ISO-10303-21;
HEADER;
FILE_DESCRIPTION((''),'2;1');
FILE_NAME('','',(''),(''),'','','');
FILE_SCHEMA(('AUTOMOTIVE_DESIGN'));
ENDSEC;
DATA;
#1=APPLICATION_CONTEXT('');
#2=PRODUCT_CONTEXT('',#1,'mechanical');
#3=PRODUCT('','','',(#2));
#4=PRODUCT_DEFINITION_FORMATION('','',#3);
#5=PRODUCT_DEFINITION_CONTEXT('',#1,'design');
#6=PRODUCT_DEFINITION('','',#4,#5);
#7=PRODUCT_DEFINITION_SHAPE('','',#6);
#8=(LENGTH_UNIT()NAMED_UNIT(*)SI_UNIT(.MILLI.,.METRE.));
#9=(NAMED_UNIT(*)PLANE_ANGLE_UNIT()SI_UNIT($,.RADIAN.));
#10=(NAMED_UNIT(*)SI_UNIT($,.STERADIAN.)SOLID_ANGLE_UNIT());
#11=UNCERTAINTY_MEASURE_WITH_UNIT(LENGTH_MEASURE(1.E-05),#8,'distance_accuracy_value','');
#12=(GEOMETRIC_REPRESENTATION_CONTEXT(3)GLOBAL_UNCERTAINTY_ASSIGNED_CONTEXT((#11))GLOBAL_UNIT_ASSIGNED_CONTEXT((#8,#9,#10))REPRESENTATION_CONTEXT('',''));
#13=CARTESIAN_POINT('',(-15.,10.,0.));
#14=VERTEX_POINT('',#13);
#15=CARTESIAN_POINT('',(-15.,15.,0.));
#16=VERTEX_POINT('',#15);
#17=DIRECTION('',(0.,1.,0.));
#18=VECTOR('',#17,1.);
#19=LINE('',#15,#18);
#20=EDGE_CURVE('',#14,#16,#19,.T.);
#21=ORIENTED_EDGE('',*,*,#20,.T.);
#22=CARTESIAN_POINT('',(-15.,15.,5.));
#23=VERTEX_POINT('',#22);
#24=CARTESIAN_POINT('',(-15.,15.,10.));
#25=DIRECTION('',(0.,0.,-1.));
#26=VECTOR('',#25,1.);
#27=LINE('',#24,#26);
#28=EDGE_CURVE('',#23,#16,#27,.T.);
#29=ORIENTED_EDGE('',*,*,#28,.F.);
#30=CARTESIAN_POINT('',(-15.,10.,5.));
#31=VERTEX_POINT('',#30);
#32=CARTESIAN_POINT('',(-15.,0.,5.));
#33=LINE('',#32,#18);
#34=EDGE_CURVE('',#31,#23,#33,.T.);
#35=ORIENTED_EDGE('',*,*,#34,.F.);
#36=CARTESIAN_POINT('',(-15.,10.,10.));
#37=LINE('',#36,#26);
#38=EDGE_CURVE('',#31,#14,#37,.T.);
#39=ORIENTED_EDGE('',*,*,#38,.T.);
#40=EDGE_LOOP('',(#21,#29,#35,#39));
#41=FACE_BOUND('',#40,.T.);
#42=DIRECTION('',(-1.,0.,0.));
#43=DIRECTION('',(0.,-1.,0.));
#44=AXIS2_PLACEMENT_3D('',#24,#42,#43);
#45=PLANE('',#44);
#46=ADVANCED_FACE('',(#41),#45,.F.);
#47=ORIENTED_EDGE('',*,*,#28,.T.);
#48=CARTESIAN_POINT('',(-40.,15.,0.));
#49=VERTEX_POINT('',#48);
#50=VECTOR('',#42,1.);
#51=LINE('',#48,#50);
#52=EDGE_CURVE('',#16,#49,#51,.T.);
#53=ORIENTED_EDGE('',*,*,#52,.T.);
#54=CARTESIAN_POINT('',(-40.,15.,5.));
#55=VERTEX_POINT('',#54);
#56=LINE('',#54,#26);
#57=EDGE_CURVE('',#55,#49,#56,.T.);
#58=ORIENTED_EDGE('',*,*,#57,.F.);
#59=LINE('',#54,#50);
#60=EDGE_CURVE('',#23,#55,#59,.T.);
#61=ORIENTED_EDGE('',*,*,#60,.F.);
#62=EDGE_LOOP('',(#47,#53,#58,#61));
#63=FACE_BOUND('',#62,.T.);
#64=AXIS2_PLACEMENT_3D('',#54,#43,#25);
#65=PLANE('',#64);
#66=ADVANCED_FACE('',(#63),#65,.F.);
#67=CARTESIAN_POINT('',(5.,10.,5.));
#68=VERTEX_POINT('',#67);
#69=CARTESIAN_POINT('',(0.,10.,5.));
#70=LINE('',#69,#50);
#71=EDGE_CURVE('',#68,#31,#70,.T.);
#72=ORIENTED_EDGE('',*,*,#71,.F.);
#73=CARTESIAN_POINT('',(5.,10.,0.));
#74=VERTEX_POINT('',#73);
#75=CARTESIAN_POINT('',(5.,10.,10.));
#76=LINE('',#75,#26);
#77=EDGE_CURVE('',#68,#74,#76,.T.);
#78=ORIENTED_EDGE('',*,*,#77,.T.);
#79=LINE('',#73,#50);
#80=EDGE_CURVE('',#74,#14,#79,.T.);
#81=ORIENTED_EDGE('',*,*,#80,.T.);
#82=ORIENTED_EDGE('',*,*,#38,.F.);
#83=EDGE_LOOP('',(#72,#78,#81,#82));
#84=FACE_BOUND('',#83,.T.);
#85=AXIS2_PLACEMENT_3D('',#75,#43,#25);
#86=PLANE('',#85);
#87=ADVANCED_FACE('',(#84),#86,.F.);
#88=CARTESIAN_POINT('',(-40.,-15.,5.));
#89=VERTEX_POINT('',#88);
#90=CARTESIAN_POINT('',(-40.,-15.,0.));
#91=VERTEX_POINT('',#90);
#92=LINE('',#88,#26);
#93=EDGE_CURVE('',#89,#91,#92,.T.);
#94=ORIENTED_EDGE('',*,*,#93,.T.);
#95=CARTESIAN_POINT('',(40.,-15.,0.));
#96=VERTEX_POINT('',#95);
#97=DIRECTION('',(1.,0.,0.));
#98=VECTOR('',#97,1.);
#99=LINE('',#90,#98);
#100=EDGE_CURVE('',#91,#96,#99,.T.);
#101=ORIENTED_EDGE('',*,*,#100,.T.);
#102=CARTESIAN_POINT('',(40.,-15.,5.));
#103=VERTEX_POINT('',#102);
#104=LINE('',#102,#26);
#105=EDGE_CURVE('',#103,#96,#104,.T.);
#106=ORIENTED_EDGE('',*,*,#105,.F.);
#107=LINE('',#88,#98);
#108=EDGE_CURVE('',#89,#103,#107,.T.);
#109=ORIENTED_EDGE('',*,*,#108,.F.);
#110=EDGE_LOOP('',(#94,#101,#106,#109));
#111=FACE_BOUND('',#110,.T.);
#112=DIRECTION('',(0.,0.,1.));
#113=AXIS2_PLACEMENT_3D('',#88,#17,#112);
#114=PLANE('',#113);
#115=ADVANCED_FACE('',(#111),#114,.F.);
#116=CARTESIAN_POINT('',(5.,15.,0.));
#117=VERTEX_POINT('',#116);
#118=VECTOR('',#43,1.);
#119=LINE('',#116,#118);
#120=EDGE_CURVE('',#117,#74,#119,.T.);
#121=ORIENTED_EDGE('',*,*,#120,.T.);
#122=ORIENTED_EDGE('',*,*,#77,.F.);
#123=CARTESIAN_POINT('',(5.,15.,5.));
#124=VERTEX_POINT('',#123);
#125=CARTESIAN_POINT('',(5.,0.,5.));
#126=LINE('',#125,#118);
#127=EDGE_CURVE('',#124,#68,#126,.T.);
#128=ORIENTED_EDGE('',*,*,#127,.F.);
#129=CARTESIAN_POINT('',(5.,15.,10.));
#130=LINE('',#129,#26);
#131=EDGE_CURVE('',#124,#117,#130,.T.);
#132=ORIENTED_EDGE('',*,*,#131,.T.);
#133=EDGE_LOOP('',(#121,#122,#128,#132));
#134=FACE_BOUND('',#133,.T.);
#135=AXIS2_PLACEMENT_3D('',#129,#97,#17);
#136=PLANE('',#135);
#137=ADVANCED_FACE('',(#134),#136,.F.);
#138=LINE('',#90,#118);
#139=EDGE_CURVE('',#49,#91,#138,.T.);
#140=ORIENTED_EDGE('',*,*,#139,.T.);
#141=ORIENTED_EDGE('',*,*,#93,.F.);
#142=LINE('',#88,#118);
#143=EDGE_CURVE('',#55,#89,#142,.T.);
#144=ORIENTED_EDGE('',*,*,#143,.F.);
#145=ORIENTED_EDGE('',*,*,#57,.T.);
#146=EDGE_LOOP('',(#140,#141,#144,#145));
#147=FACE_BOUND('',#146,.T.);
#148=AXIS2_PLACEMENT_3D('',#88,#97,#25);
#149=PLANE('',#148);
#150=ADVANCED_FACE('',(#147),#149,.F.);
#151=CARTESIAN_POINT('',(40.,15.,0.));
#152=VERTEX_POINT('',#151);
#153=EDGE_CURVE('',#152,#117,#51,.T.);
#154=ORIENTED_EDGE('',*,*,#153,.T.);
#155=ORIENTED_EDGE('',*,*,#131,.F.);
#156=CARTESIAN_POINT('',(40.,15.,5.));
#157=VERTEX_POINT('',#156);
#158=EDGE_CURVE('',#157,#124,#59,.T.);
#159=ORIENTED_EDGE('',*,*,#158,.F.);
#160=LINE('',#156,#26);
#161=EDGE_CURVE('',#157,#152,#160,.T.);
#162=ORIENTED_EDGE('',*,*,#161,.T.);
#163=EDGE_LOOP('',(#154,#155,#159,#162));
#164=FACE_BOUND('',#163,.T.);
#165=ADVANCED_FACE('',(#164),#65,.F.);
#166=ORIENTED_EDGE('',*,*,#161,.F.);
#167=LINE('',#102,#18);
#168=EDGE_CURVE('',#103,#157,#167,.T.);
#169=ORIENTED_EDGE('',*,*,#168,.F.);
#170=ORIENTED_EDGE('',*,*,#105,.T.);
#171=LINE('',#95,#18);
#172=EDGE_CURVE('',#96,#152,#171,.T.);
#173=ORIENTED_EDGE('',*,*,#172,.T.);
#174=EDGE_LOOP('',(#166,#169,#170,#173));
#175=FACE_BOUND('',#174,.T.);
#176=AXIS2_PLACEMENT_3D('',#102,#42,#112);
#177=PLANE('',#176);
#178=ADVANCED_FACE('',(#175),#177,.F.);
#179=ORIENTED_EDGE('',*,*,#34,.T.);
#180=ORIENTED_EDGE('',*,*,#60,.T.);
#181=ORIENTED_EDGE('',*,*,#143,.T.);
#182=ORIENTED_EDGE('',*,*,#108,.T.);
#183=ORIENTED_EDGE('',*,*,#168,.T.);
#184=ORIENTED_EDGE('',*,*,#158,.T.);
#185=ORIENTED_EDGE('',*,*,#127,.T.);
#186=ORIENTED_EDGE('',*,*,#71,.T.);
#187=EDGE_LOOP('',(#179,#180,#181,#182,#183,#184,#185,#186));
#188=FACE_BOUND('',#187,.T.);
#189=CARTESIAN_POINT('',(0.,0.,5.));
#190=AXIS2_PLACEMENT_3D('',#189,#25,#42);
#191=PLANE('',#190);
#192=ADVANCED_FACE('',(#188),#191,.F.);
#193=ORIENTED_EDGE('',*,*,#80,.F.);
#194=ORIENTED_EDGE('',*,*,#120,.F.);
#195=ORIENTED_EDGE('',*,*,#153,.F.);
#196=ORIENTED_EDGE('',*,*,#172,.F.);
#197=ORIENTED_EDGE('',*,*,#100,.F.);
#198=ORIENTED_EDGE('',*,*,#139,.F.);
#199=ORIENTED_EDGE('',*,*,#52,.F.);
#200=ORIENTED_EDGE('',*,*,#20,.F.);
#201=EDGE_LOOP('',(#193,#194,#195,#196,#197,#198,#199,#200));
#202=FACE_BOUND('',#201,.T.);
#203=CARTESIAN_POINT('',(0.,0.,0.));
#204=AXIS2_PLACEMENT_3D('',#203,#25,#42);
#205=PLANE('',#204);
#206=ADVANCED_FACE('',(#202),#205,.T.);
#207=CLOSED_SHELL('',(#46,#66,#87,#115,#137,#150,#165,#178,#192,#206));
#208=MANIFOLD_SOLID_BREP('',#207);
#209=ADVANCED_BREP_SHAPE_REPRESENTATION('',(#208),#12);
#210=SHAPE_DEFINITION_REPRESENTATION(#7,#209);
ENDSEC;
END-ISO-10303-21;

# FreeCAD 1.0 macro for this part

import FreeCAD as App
import Part
import Sketcher

V = App.Vector

doc = App.newDocument("Part")
body = doc.addObject("PartDesign::Body", "Body")

# Sketch on XY plane
sketch1 = body.newObject("Sketcher::SketchObject", "Sketch")
sketch1.AttachmentSupport = (doc.getObject("XY_Plane"), [""])
sketch1.MapMode = "FlatFace"
sketch1.addGeometry([
    Part.LineSegment(V(-40, 15, 0), V(-40, -15, 0)),
    Part.LineSegment(V(-40, -15, 0), V(40, -15, 0)),
    Part.LineSegment(V(40, -15, 0), V(40, 15, 0)),
    Part.LineSegment(V(40, 15, 0), V(-40, 15, 0)),
], False)
sketch1.addConstraint([
    Sketcher.Constraint("Coincident", 0, 2, 1, 1),
    Sketcher.Constraint("Coincident", 1, 2, 2, 1),
    Sketcher.Constraint("Coincident", 2, 2, 3, 1),
    Sketcher.Constraint("Coincident", 3, 2, 0, 1),
    Sketcher.Constraint("Vertical", 0),
    Sketcher.Constraint("Horizontal", 1),
    Sketcher.Constraint("Vertical", 2),
    Sketcher.Constraint("Horizontal", 3),
    Sketcher.Constraint("Symmetric", 0, 2, 2, 2, -1, 1),
    Sketcher.Constraint("DistanceX", 1, 1, 1, 2, 80.0),
    Sketcher.Constraint("DistanceY", 0, 2, 0, 1, 30.0),
])
pad1 = body.newObject("PartDesign::Pad", "Pad")
pad1.Profile = sketch1
pad1.Length = 5

# Sketch on XY plane
sketch2 = body.newObject("Sketcher::SketchObject", "Sketch001")
sketch2.AttachmentSupport = (doc.getObject("XY_Plane"), [""])
sketch2.MapMode = "FlatFace"
sketch2.addGeometry([
    Part.LineSegment(V(5, 15, 0), V(5, 10, 0)),
    Part.LineSegment(V(5, 10, 0), V(-15, 10, 0)),
    Part.LineSegment(V(-15, 10, 0), V(-15, 15, 0)),
    Part.LineSegment(V(-15, 15, 0), V(5, 15, 0)),
], False)
sketch2.addConstraint([
    Sketcher.Constraint("Coincident", 0, 2, 1, 1),
    Sketcher.Constraint("Coincident", 1, 2, 2, 1),
    Sketcher.Constraint("Coincident", 2, 2, 3, 1),
    Sketcher.Constraint("Coincident", 3, 2, 0, 1),
    Sketcher.Constraint("Vertical", 0),
    Sketcher.Constraint("Horizontal", 1),
    Sketcher.Constraint("Vertical", 2),
    Sketcher.Constraint("Horizontal", 3),
    Sketcher.Constraint("DistanceX", 1, 2, 1, 1, 20.0),
    Sketcher.Constraint("DistanceY", 0, 2, 0, 1, 5.0),
    Sketcher.Constraint("DistanceX", -1, 1, 0, 2, 5.0),
    Sketcher.Constraint("DistanceY", -1, 1, 0, 2, 10.0),
])
pocket1 = body.newObject("PartDesign::Pocket", "Pocket")
pocket1.Profile = sketch2
pocket1.Length = 10
pocket1.Reversed = True

doc.recompute()
